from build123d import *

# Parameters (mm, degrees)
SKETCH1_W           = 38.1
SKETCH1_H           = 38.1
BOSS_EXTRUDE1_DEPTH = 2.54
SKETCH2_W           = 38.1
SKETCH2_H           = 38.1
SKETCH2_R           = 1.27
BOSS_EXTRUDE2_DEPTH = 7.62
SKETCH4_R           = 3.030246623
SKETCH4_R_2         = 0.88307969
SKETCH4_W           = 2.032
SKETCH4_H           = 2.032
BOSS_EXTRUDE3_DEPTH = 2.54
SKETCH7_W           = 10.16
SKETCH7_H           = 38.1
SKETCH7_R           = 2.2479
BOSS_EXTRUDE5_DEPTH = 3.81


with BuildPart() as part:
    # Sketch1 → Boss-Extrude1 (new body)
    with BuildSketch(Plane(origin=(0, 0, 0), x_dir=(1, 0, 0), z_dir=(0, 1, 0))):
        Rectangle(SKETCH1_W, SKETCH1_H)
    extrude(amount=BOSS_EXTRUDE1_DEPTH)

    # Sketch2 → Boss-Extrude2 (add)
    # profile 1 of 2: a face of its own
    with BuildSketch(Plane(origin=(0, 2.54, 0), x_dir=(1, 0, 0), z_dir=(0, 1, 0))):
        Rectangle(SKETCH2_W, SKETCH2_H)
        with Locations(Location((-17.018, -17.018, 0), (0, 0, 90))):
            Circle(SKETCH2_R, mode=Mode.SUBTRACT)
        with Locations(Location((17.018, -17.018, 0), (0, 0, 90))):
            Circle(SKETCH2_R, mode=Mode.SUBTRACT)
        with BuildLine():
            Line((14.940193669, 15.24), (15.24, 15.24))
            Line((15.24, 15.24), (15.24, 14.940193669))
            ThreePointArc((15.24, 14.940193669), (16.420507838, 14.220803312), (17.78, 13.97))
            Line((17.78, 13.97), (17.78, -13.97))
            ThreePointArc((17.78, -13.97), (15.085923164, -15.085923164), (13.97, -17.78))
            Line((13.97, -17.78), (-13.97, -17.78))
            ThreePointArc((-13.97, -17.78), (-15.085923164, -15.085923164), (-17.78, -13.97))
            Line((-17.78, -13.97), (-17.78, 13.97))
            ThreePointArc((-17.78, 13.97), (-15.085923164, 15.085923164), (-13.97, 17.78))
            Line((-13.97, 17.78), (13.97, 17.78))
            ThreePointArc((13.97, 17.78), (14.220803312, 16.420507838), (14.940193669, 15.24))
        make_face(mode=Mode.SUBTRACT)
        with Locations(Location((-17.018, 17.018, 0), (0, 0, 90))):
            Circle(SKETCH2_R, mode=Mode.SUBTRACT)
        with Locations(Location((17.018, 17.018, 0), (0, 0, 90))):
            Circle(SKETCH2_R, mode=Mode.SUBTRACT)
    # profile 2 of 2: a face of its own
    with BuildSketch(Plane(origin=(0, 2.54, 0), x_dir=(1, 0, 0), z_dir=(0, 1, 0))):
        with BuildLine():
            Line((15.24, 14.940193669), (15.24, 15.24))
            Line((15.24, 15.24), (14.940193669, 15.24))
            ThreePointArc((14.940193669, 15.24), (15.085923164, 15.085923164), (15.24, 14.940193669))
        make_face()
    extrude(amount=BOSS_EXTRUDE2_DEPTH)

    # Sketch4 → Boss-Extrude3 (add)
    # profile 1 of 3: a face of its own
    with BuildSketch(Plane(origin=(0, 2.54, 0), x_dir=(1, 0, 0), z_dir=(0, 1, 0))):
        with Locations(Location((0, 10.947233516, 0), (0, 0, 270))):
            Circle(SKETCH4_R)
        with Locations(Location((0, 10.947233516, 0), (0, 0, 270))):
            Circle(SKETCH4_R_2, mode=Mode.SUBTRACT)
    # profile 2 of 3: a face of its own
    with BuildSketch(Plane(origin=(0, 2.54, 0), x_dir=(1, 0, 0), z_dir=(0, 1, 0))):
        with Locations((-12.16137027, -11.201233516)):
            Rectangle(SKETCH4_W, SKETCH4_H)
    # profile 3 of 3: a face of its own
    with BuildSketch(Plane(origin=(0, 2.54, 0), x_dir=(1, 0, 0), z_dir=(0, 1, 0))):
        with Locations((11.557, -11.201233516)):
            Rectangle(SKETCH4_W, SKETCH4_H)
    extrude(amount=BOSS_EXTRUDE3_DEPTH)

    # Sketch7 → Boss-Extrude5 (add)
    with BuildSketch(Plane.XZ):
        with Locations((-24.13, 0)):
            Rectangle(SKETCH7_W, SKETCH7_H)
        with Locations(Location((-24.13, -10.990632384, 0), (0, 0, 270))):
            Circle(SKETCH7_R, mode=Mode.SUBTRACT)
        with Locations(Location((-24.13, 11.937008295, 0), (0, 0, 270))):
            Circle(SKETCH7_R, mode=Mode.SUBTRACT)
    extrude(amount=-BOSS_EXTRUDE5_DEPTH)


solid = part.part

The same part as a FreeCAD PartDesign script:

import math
import FreeCAD as App
import Part
import Sketcher
Q = App.Units.Quantity

doc = App.newDocument("Part")
params = doc.addObject("Spreadsheet::Sheet", "Params")
for row, (alias, value) in enumerate([
    ("sketch1_width", "1.5 in"),
    ("pad1_length", "0.1 in"),
    ("sketch2_diameter", "0.1 in"),
    ("sketch2_radius", "0.15 in"),
    ("sketch2_width", "1.5 in"),
    ("sketch2_width2", "1.1 in"),
    ("pad2_length", "0.3 in"),
    ("sketch3_width", "0.08 in"),
    ("pad3_length", "0.1 in"),
    ("sketch4_diameter", "0.177 in"),
    ("sketch4_width", "0.4 in"),
    ("sketch4_height", "1.5 in"),
    ("pad4_length", "0.15 in"),
], start=1):
    params.set(f"A{row}", alias)
    params.set(f"B{row}", "=" + value)
    params.setAlias(f"B{row}", alias)

body = doc.addObject("PartDesign::Body", "Body")

sketch1 = doc.addObject("Sketcher::SketchObject", "Sketch")
body.addObject(sketch1)
sketch1.AttachmentSupport = (doc.XZ_Plane, [""])
sketch1.MapMode = "FlatFace"
sketch1.addGeometry([
    Part.LineSegment(App.Vector(-19.05, -19.05, 0), App.Vector(-19.05, 19.05, 0)),
    Part.LineSegment(App.Vector(-19.05, 19.05, 0), App.Vector(19.05, 19.05, 0)),
    Part.LineSegment(App.Vector(19.05, 19.05, 0), App.Vector(19.05, -19.05, 0)),
    Part.LineSegment(App.Vector(19.05, -19.05, 0), App.Vector(-19.05, -19.05, 0)),
], False)
sketch1.addConstraint([
    Sketcher.Constraint("Coincident", 0, 2, 1, 1),
    Sketcher.Constraint("Coincident", 1, 2, 2, 1),
    Sketcher.Constraint("Coincident", 2, 2, 3, 1),
    Sketcher.Constraint("Coincident", 3, 2, 0, 1),
    Sketcher.Constraint("Vertical", 0),
    Sketcher.Constraint("Horizontal", 1),
    Sketcher.Constraint("Vertical", 2),
    Sketcher.Constraint("Horizontal", 3),
    Sketcher.Constraint("Symmetric", 0, 2, 2, 2, -1, 1),
    Sketcher.Constraint("Equal", 3, 0),
    Sketcher.Constraint("DistanceX", 1, 1, 1, 2, Q("1.5 in")),
])
sketch1.setExpression("Constraints[10]", "Params.sketch1_width")
pad1 = doc.addObject("PartDesign::Pad", "Pad")
body.addObject(pad1)
pad1.Profile = sketch1
pad1.setExpression("Length", "Params.pad1_length")
pad1.Reversed = True

sketch2 = doc.addObject("Sketcher::SketchObject", "Sketch001")
body.addObject(sketch2)
sketch2.AttachmentSupport = (doc.XZ_Plane, [""])
sketch2.MapMode = "FlatFace"
sketch2.AttachmentOffset = App.Placement(App.Vector(0, 0, -0.1 * 25.4), App.Rotation())
sketch2.addGeometry([
    Part.LineSegment(App.Vector(-19.05, -19.05, 0), App.Vector(-19.05, 19.05, 0)),
    Part.LineSegment(App.Vector(-19.05, 19.05, 0), App.Vector(19.05, 19.05, 0)),
    Part.LineSegment(App.Vector(19.05, 19.05, 0), App.Vector(19.05, -19.05, 0)),
    Part.LineSegment(App.Vector(19.05, -19.05, 0), App.Vector(-19.05, -19.05, 0)),
    Part.Circle(App.Vector(-17.018, 17.018, 0), App.Vector(0, 0, 1), 1.27),
    Part.Circle(App.Vector(17.018, 17.018, 0), App.Vector(0, 0, 1), 1.27),
    Part.Circle(App.Vector(-17.018, -17.018, 0), App.Vector(0, 0, 1), 1.27),
    Part.ArcOfCircle(Part.Circle(App.Vector(17.78, -17.78, 0), App.Vector(0, 0, 1), 3.81), math.radians(138.189685), math.radians(180)),
    Part.ArcOfCircle(Part.Circle(App.Vector(17.78, -17.78, 0), App.Vector(0, 0, 1), 3.81), math.radians(131.810315), math.radians(138.189685)),
    Part.ArcOfCircle(Part.Circle(App.Vector(17.78, -17.78, 0), App.Vector(0, 0, 1), 3.81), math.radians(90), math.radians(131.810315)),
    Part.LineSegment(App.Vector(17.78, -13.97, 0), App.Vector(17.78, 13.97, 0)),
    Part.ArcOfCircle(Part.Circle(App.Vector(17.78, 17.78, 0), App.Vector(0, 0, 1), 3.81), math.radians(-180), math.radians(-90)),
    Part.LineSegment(App.Vector(13.97, 17.78, 0), App.Vector(-13.97, 17.78, 0)),
    Part.ArcOfCircle(Part.Circle(App.Vector(-17.78, 17.78, 0), App.Vector(0, 0, 1), 3.81), math.radians(-90), math.radians(0)),
    Part.LineSegment(App.Vector(-17.78, 13.97, 0), App.Vector(-17.78, -13.97, 0)),
    Part.ArcOfCircle(Part.Circle(App.Vector(-17.78, -17.78, 0), App.Vector(0, 0, 1), 3.81), math.radians(0), math.radians(90)),
    Part.LineSegment(App.Vector(-13.97, -17.78, 0), App.Vector(13.97, -17.78, 0)),
    Part.Circle(App.Vector(17.018, -17.018, 0), App.Vector(0, 0, 1), 1.27),
], False)
sketch2.addConstraint([
    Sketcher.Constraint("Coincident", 0, 2, 1, 1),
    Sketcher.Constraint("Coincident", 1, 2, 2, 1),
    Sketcher.Constraint("Coincident", 2, 2, 3, 1),
    Sketcher.Constraint("Coincident", 3, 2, 0, 1),
    Sketcher.Constraint("Tangent", 7, 1, 8, 2),
    Sketcher.Constraint("Tangent", 8, 1, 9, 2),
    Sketcher.Constraint("Coincident", 9, 1, 10, 1),
    Sketcher.Constraint("Coincident", 10, 2, 11, 2),
    Sketcher.Constraint("Coincident", 11, 1, 12, 1),
    Sketcher.Constraint("Coincident", 12, 2, 13, 2),
    Sketcher.Constraint("Coincident", 13, 1, 14, 1),
    Sketcher.Constraint("Coincident", 14, 2, 15, 2),
    Sketcher.Constraint("Coincident", 15, 1, 16, 1),
    Sketcher.Constraint("Coincident", 16, 2, 7, 2),
    Sketcher.Constraint("Vertical", 0),
    Sketcher.Constraint("Horizontal", 1),
    Sketcher.Constraint("Vertical", 2),
    Sketcher.Constraint("Horizontal", 3),
    Sketcher.Constraint("Vertical", 10),
    Sketcher.Constraint("Horizontal", 12),
    Sketcher.Constraint("Vertical", 14),
    Sketcher.Constraint("Horizontal", 16),
    Sketcher.Constraint("Coincident", 9, 3, 7, 3),
    Sketcher.Constraint("Equal", 4, 5),
    Sketcher.Constraint("Equal", 5, 6),
    Sketcher.Constraint("Equal", 9, 11),
    Sketcher.Constraint("Equal", 11, 13),
    Sketcher.Constraint("Equal", 13, 15),
    Sketcher.Constraint("Equal", 6, 17),
    Sketcher.Constraint("Symmetric", 5, 3, 6, 3, -1, 1),
    Sketcher.Constraint("Symmetric", 7, 3, 13, 3, -1, 1),
    Sketcher.Constraint("Symmetric", 11, 3, 15, 3, -1, 1),
    Sketcher.Constraint("Symmetric", 4, 3, 17, 3, -1, 1),
    Sketcher.Constraint("Symmetric", 0, 2, 2, 2, -1, 1),
    Sketcher.Constraint("Symmetric", 4, 3, 5, 3, -2),
    Sketcher.Constraint("Symmetric", 11, 3, 13, 3, -2),
    Sketcher.Constraint("Horizontal", 13, 3, 11, 1),
    Sketcher.Constraint("Horizontal", 9, 3, 15, 1),
    Sketcher.Constraint("Vertical", 11, 3, 9, 1),
    Sketcher.Constraint("Vertical", 15, 3, 13, 1),
    Sketcher.Constraint("Equal", 3, 0),
    Sketcher.Constraint("Equal", 16, 10),
    Sketcher.Constraint("Diameter", 4, Q("0.1 in")),
    Sketcher.Constraint("Radius", 7, Q("0.15 in")),
    Sketcher.Constraint("DistanceX", 1, 1, 1, 2, Q("1.5 in")),
    Sketcher.Constraint("DistanceX", 12, 2, 12, 1, Q("1.1 in")),
    Sketcher.Constraint("DistanceY", 7, 1, -1, 1, Q("0.6 in")),
    Sketcher.Constraint("DistanceX", -1, 1, 8, 1, Q("0.6 in")),
    Sketcher.Constraint("DistanceX", 4, 3, -1, 1, Q("0.67 in")),
    Sketcher.Constraint("DistanceY", -1, 1, 4, 3, Q("0.67 in")),
])
sketch2.setExpression("Constraints[42]", "Params.sketch2_diameter")
sketch2.setExpression("Constraints[43]", "Params.sketch2_radius")
sketch2.setExpression("Constraints[44]", "Params.sketch2_width")
sketch2.setExpression("Constraints[45]", "Params.sketch2_width2")
pad2 = doc.addObject("PartDesign::Pad", "Pad001")
body.addObject(pad2)
pad2.Profile = sketch2
pad2.setExpression("Length", "Params.pad2_length")
pad2.Reversed = True

sketch3 = doc.addObject("Sketcher::SketchObject", "Sketch002")
body.addObject(sketch3)
sketch3.AttachmentSupport = (doc.XZ_Plane, [""])
sketch3.MapMode = "FlatFace"
sketch3.AttachmentOffset = App.Placement(App.Vector(0, 0, -0.1 * 25.4), App.Rotation())
sketch3.addGeometry([
    Part.Circle(App.Vector(0, -10.947234, 0), App.Vector(0, 0, 1), 3.030247),
    Part.Circle(App.Vector(0, -10.947234, 0), App.Vector(0, 0, 1), 0.88308),
    Part.LineSegment(App.Vector(-13.17737, 10.185234, 0), App.Vector(-13.17737, 12.217234, 0)),
    Part.LineSegment(App.Vector(-13.17737, 12.217234, 0), App.Vector(-11.14537, 12.217234, 0)),
    Part.LineSegment(App.Vector(-11.14537, 12.217234, 0), App.Vector(-11.14537, 10.185234, 0)),
    Part.LineSegment(App.Vector(-11.14537, 10.185234, 0), App.Vector(-13.17737, 10.185234, 0)),
    Part.LineSegment(App.Vector(10.541, 10.185234, 0), App.Vector(10.541, 12.217234, 0)),
    Part.LineSegment(App.Vector(10.541, 12.217234, 0), App.Vector(12.573, 12.217234, 0)),
    Part.LineSegment(App.Vector(12.573, 12.217234, 0), App.Vector(12.573, 10.185234, 0)),
    Part.LineSegment(App.Vector(12.573, 10.185234, 0), App.Vector(10.541, 10.185234, 0)),
], False)
sketch3.addConstraint([
    Sketcher.Constraint("Coincident", 2, 2, 3, 1),
    Sketcher.Constraint("Coincident", 3, 2, 4, 1),
    Sketcher.Constraint("Coincident", 4, 2, 5, 1),
    Sketcher.Constraint("Coincident", 5, 2, 2, 1),
    Sketcher.Constraint("Coincident", 6, 2, 7, 1),
    Sketcher.Constraint("Coincident", 7, 2, 8, 1),
    Sketcher.Constraint("Coincident", 8, 2, 9, 1),
    Sketcher.Constraint("Coincident", 9, 2, 6, 1),
    Sketcher.Constraint("Vertical", 2),
    Sketcher.Constraint("Horizontal", 3),
    Sketcher.Constraint("Vertical", 4),
    Sketcher.Constraint("Horizontal", 5),
    Sketcher.Constraint("Vertical", 6),
    Sketcher.Constraint("Horizontal", 7),
    Sketcher.Constraint("Vertical", 8),
    Sketcher.Constraint("Horizontal", 9),
    Sketcher.Constraint("Coincident", 1, 3, 0, 3),
    Sketcher.Constraint("PointOnObject", 0, 3, -2),
    Sketcher.Constraint("Horizontal", 3, 2, 6, 2),
    Sketcher.Constraint("Horizontal", 5, 2, 8, 2),
    Sketcher.Constraint("Equal", 5, 7),
    Sketcher.Constraint("Equal", 9, 2),
    Sketcher.Constraint("DistanceX", 3, 1, 3, 2, Q("0.08 in")),
    Sketcher.Constraint("Diameter", 1, 1.766159),
    Sketcher.Constraint("DistanceX", -1, 1, 6, 2, Q("0.415 in")),
    Sketcher.Constraint("Diameter", 0, 6.060493),
    Sketcher.Constraint("DistanceX", 2, 2, -1, 1, 13.17737),
    Sketcher.Constraint("DistanceY", 0, 3, -1, 1, 10.947234),
    Sketcher.Constraint("DistanceY", -1, 1, 2, 2, 12.217234),
])
sketch3.setExpression("Constraints[22]", "Params.sketch3_width")
pad3 = doc.addObject("PartDesign::Pad", "Pad002")
body.addObject(pad3)
pad3.Profile = sketch3
pad3.setExpression("Length", "Params.pad3_length")
pad3.Reversed = True

sketch4 = doc.addObject("Sketcher::SketchObject", "Sketch003")
body.addObject(sketch4)
sketch4.AttachmentSupport = (doc.XZ_Plane, [""])
sketch4.MapMode = "FlatFace"
sketch4.addGeometry([
    Part.LineSegment(App.Vector(-29.21, 19.05, 0), App.Vector(-29.21, -19.05, 0)),
    Part.LineSegment(App.Vector(-29.21, -19.05, 0), App.Vector(-19.05, -19.05, 0)),
    Part.LineSegment(App.Vector(-19.05, -19.05, 0), App.Vector(-19.05, 19.05, 0)),
    Part.LineSegment(App.Vector(-19.05, 19.05, 0), App.Vector(-29.21, 19.05, 0)),
    Part.Circle(App.Vector(-24.13, -10.990632, 0), App.Vector(0, 0, 1), 2.2479),
    Part.Circle(App.Vector(-24.13, 11.937008, 0), App.Vector(0, 0, 1), 2.2479),
], False)
sketch4.addConstraint([
    Sketcher.Constraint("Coincident", 0, 2, 1, 1),
    Sketcher.Constraint("Coincident", 1, 2, 2, 1),
    Sketcher.Constraint("Coincident", 2, 2, 3, 1),
    Sketcher.Constraint("Coincident", 3, 2, 0, 1),
    Sketcher.Constraint("Vertical", 0),
    Sketcher.Constraint("Horizontal", 1),
    Sketcher.Constraint("Vertical", 2),
    Sketcher.Constraint("Horizontal", 3),
    Sketcher.Constraint("Equal", 4, 5),
    Sketcher.Constraint("Vertical", 4, 3, 5, 3),
    Sketcher.Constraint("Diameter", 4, Q("0.177 in")),
    Sketcher.Constraint("DistanceX", 1, 1, 1, 2, Q("0.4 in")),
    Sketcher.Constraint("DistanceY", 0, 2, 0, 1, Q("1.5 in")),
    Sketcher.Constraint("DistanceX", 0, 2, 4, 3, Q("0.2 in")),
    Sketcher.Constraint("DistanceX", 4, 3, -1, 1, Q("0.95 in")),
    Sketcher.Constraint("DistanceY", 0, 2, -1, 1, Q("0.75 in")),
    Sketcher.Constraint("DistanceY", -1, 1, 5, 3, 11.937008),
    Sketcher.Constraint("DistanceY", 4, 3, 5, 3, 22.927641),
])
sketch4.setExpression("Constraints[10]", "Params.sketch4_diameter")
sketch4.setExpression("Constraints[11]", "Params.sketch4_width")
sketch4.setExpression("Constraints[12]", "Params.sketch4_height")
pad4 = doc.addObject("PartDesign::Pad", "Pad003")
body.addObject(pad4)
pad4.Profile = sketch4
pad4.setExpression("Length", "Params.pad4_length")
pad4.Reversed = True

doc.recompute()
